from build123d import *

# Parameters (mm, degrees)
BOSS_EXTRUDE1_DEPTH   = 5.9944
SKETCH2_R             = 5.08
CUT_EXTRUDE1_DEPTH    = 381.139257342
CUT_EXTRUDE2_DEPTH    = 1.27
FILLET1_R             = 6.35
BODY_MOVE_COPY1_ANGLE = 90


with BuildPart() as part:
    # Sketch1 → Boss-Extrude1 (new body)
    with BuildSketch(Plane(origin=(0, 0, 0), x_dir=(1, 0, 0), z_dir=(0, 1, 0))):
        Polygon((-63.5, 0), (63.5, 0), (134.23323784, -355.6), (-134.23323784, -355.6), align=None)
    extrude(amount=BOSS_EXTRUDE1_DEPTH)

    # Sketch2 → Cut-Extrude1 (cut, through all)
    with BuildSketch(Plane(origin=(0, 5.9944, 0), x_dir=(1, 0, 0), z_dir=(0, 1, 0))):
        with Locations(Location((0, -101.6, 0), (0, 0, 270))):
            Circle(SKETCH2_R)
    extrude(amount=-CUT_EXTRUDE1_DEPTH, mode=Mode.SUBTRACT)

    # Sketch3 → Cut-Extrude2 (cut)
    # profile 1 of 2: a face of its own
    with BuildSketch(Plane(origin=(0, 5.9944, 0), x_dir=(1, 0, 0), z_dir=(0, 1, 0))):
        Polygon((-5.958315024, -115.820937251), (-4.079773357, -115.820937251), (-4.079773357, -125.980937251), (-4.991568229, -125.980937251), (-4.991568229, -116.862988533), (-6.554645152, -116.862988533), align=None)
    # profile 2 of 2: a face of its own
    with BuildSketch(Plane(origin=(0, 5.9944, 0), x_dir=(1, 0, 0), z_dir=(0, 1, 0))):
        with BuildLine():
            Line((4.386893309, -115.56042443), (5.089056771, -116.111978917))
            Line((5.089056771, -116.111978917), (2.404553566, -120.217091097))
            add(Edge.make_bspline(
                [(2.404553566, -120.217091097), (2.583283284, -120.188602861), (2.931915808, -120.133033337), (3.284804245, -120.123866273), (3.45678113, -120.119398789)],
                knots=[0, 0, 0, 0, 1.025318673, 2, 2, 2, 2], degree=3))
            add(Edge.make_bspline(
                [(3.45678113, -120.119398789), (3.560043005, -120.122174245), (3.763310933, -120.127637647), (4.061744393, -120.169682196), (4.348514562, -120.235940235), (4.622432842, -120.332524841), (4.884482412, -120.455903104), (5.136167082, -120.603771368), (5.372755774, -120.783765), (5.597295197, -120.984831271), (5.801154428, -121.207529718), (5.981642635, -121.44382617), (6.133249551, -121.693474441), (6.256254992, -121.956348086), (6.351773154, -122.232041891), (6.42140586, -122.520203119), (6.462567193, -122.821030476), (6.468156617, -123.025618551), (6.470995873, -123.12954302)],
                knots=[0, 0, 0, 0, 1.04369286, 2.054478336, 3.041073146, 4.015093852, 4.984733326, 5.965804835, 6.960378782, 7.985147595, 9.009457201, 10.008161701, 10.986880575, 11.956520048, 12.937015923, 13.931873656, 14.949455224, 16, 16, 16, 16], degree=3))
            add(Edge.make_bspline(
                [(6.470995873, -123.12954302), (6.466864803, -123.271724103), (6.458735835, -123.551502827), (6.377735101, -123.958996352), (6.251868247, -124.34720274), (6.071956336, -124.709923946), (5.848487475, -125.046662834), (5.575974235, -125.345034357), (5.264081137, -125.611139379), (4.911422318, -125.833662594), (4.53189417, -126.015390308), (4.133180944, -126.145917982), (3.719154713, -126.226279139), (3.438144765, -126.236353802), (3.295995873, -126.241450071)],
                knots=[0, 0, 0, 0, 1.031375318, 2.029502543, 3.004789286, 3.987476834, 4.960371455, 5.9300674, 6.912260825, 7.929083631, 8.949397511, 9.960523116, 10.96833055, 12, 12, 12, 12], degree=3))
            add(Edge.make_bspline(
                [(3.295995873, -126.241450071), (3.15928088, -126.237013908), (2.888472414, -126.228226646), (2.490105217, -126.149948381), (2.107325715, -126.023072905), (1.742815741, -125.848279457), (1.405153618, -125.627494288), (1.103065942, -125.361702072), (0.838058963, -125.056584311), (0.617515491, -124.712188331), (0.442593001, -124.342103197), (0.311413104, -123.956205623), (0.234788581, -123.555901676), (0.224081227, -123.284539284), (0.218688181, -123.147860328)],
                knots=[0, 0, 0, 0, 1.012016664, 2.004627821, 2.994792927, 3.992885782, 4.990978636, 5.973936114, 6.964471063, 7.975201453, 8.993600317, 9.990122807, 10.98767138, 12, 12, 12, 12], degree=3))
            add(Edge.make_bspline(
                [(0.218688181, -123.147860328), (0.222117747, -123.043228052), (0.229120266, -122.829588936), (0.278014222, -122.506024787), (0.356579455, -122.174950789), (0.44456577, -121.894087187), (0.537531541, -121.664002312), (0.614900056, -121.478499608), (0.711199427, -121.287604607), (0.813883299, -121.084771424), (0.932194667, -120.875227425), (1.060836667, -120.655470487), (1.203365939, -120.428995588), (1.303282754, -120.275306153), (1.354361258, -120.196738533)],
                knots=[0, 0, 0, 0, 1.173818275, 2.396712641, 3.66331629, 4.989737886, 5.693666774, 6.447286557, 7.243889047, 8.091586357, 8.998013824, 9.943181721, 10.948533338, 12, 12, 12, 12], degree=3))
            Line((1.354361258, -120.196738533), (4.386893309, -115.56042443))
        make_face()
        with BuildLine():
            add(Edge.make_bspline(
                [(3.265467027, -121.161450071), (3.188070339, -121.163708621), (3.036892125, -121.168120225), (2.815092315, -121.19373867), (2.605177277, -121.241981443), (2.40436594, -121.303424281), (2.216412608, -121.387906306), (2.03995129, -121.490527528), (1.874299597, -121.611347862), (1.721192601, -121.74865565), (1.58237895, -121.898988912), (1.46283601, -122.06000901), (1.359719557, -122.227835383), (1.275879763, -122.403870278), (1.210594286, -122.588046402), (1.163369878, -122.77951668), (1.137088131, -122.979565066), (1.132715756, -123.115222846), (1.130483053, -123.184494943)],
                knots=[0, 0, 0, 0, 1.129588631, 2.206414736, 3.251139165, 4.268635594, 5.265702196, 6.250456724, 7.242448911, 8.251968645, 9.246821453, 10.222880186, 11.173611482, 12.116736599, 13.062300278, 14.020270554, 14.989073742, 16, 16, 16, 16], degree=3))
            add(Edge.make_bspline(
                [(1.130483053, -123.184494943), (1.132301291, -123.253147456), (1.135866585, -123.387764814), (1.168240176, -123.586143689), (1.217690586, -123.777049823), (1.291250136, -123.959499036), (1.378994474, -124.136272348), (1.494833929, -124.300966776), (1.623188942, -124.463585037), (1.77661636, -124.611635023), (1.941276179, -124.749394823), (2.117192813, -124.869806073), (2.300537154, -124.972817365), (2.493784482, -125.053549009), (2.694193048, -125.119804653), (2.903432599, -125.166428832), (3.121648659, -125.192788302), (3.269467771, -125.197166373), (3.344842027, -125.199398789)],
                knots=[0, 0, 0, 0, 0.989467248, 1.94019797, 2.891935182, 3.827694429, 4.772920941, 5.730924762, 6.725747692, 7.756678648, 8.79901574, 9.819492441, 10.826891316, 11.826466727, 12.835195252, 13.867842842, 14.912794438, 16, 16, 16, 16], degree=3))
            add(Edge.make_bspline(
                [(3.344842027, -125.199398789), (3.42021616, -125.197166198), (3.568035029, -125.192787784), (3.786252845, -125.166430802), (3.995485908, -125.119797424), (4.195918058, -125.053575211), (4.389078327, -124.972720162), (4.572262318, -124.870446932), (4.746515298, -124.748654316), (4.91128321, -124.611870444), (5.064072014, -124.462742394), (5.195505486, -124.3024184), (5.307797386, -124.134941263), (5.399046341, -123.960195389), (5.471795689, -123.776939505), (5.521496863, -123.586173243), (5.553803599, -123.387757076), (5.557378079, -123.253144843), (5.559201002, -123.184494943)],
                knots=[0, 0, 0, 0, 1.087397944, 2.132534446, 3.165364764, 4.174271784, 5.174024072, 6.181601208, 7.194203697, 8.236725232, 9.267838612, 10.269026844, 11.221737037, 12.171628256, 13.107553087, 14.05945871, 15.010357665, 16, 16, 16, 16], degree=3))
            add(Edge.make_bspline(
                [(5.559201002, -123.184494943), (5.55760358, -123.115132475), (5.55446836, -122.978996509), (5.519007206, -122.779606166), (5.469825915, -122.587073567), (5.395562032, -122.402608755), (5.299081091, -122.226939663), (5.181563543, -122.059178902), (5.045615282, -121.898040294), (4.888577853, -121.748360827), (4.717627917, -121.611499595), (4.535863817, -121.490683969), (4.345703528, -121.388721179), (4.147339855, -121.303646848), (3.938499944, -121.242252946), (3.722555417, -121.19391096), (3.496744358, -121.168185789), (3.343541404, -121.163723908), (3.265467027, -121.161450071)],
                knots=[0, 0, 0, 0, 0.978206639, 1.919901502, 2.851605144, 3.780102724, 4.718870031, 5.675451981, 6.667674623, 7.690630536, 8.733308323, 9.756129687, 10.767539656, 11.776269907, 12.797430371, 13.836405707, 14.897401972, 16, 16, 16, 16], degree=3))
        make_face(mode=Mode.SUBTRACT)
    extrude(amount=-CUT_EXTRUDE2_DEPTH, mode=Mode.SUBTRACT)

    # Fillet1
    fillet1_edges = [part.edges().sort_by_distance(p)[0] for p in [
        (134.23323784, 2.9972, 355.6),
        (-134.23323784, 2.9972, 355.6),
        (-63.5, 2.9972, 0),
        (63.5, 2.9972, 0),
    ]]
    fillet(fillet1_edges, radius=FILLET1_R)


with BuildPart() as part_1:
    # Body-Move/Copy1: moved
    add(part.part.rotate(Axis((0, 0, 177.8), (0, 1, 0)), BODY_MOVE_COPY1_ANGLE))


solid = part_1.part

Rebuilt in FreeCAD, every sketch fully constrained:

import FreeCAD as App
import Part
import Sketcher
Q = App.Units.Quantity


def edges_at(feature, points):
    """Names of the edges that pass closest to the given points."""
    edges = feature.Shape.Edges
    near = lambda p: min(range(len(edges)), key=lambda i: edges[i].distToShape(Part.Vertex(*p))[0])
    return sorted({f"Edge{near(p) + 1}" for p in points})


def add_polygon(sketch, points):
    """Adds a closed chain of lines whose ends are joined by coincident constraints."""
    first, n = sketch.GeometryCount, len(points)
    for a, b in zip(points, points[1:] + points[:1]):
        sketch.addGeometry(Part.LineSegment(App.Vector(*a, 0), App.Vector(*b, 0)), False)
    for i in range(n):
        sketch.addConstraint(Sketcher.Constraint("Coincident", first + i, 2, first + (i + 1) % n, 1))

doc = App.newDocument("Part")
body = doc.addObject("PartDesign::Body", "Body")

# Sketch on XZ plane
sketch1 = body.newObject("Sketcher::SketchObject", "Sketch")
sketch1.AttachmentSupport = (doc.getObject("XZ_Plane"), [""])
sketch1.MapMode = "FlatFace"
add_polygon(sketch1, [(63.5, 0), (-63.5, 0), (-134.233238, 355.6), (134.233238, 355.6)])  # lines 0-3
sketch1.addConstraint(Sketcher.Constraint("Horizontal", 0))
sketch1.addConstraint(Sketcher.Constraint("Horizontal", 2))
sketch1.addConstraint(Sketcher.Constraint("Symmetric", 0, 2, 3, 2, -1, 1))
sketch1.addConstraint(Sketcher.Constraint("Equal", 1, 3))
sketch1.addConstraint(Sketcher.Constraint("DistanceX", 0, 2, 0, 1, Q("5 in")))
sketch1.addConstraint(Sketcher.Constraint("DistanceY", -1, 1, 1, 2, Q("14 in")))
sketch1.addConstraint(Sketcher.Constraint("Angle", 1, Q("101.25 deg")))
pad1 = body.newObject("PartDesign::Pad", "Pad")
pad1.Profile = sketch1
pad1.Length = Q("0.236 in")
pad1.Reversed = True

# Sketch on XZ plane
sketch2 = body.newObject("Sketcher::SketchObject", "Sketch001")
sketch2.AttachmentSupport = (doc.getObject("XZ_Plane"), [""])
sketch2.MapMode = "FlatFace"
sketch2.AttachmentOffset = App.Placement(App.Vector(0, 0, -0.236 * 25.4), App.Rotation())
sketch2.addGeometry(Part.Circle(App.Vector(0, 101.6, 0), App.Vector(0, 0, 1), 5.08), False)
sketch2.addConstraint(Sketcher.Constraint("PointOnObject", 0, 3, -2))
sketch2.addConstraint(Sketcher.Constraint("Diameter", 0, Q("0.4 in")))
sketch2.addConstraint(Sketcher.Constraint("DistanceY", -1, 1, 0, 3, Q("4 in")))
pocket1 = body.newObject("PartDesign::Pocket", "Pocket")
pocket1.Profile = sketch2
pocket1.Type = "ThroughAll"
pocket1.Reversed = True

# Sketch on XZ plane
sketch3 = body.newObject("Sketcher::SketchObject", "Sketch002")
sketch3.AttachmentSupport = (doc.getObject("XZ_Plane"), [""])
sketch3.MapMode = "FlatFace"
sketch3.AttachmentOffset = App.Placement(App.Vector(0, 0, -0.236 * 25.4), App.Rotation())
add_polygon(sketch3, [(-4.079773, 115.820937), (-5.958315, 115.820937), (-6.554645, 116.862989), (-4.991568, 116.862989), (-4.991568, 125.980937), (-4.079773, 125.980937)])  # lines 0-5
sketch3.addGeometry(Part.LineSegment(App.Vector(5.089057, 116.111979, 0), App.Vector(4.386893, 115.560424, 0)), False)  # 6
sketch3.addGeometry(Part.LineSegment(App.Vector(4.386893, 115.560424, 0), App.Vector(1.354361, 120.196739, 0)), False)  # 7
sketch3.addGeometry(Part.BSplineCurve([App.Vector(0.218688, 123.14786, 0), App.Vector(0.222118, 123.043228, 0), App.Vector(0.22912, 122.829589, 0), App.Vector(0.278014, 122.506025, 0), App.Vector(0.356579, 122.174951, 0), App.Vector(0.444566, 121.894087, 0), App.Vector(0.537532, 121.664002, 0), App.Vector(0.6149, 121.4785, 0), App.Vector(0.711199, 121.287605, 0), App.Vector(0.813883, 121.084771, 0), App.Vector(0.932195, 120.875227, 0), App.Vector(1.060837, 120.65547, 0), App.Vector(1.203366, 120.428996, 0), App.Vector(1.303283, 120.275306, 0), App.Vector(1.354361, 120.196739, 0)], [4, 1, 1, 1, 1, 1, 1, 1, 1, 1, 1, 1, 4], [0, 1.173818275, 2.396712641, 3.66331629, 4.989737886, 5.693666774, 6.447286557, 7.243889047, 8.091586357, 8.998013824, 9.943181721, 10.948533338, 12], False, 3, [1, 1, 1, 1, 1, 1, 1, 1, 1, 1, 1, 1, 1, 1, 1], False), False)  # 8
sketch3.addGeometry(Part.BSplineCurve([App.Vector(3.295996, 126.24145, 0), App.Vector(3.159281, 126.237014, 0), App.Vector(2.888472, 126.228227, 0), App.Vector(2.490105, 126.149948, 0), App.Vector(2.107326, 126.023073, 0), App.Vector(1.742816, 125.848279, 0), App.Vector(1.405154, 125.627494, 0), App.Vector(1.103066, 125.361702, 0), App.Vector(0.838059, 125.056584, 0), App.Vector(0.617515, 124.712188, 0), App.Vector(0.442593, 124.342103, 0), App.Vector(0.311413, 123.956206, 0), App.Vector(0.234789, 123.555902, 0), App.Vector(0.224081, 123.284539, 0), App.Vector(0.218688, 123.14786, 0)], [4, 1, 1, 1, 1, 1, 1, 1, 1, 1, 1, 1, 4], [0, 1.012016664, 2.004627821, 2.994792927, 3.992885782, 4.990978636, 5.973936114, 6.964471063, 7.975201453, 8.993600317, 9.990122807, 10.98767138, 12], False, 3, [1, 1, 1, 1, 1, 1, 1, 1, 1, 1, 1, 1, 1, 1, 1], False), False)  # 9
sketch3.addGeometry(Part.BSplineCurve([App.Vector(6.470996, 123.129543, 0), App.Vector(6.466865, 123.271724, 0), App.Vector(6.458736, 123.551503, 0), App.Vector(6.377735, 123.958996, 0), App.Vector(6.251868, 124.347203, 0), App.Vector(6.071956, 124.709924, 0), App.Vector(5.848487, 125.046663, 0), App.Vector(5.575974, 125.345034, 0), App.Vector(5.264081, 125.611139, 0), App.Vector(4.911422, 125.833663, 0), App.Vector(4.531894, 126.01539, 0), App.Vector(4.133181, 126.145918, 0), App.Vector(3.719155, 126.226279, 0), App.Vector(3.438145, 126.236354, 0), App.Vector(3.295996, 126.24145, 0)], [4, 1, 1, 1, 1, 1, 1, 1, 1, 1, 1, 1, 4], [0, 1.031375318, 2.029502543, 3.004789286, 3.987476834, 4.960371455, 5.9300674, 6.912260825, 7.929083631, 8.949397511, 9.960523116, 10.96833055, 12], False, 3, [1, 1, 1, 1, 1, 1, 1, 1, 1, 1, 1, 1, 1, 1, 1], False), False)  # 10
sketch3.addGeometry(Part.BSplineCurve([App.Vector(3.456781, 120.119399, 0), App.Vector(3.560043, 120.122174, 0), App.Vector(3.763311, 120.127638, 0), App.Vector(4.061744, 120.169682, 0), App.Vector(4.348515, 120.23594, 0), App.Vector(4.622433, 120.332525, 0), App.Vector(4.884482, 120.455903, 0), App.Vector(5.136167, 120.603771, 0), App.Vector(5.372756, 120.783765, 0), App.Vector(5.597295, 120.984831, 0), App.Vector(5.801154, 121.20753, 0), App.Vector(5.981643, 121.443826, 0), App.Vector(6.13325, 121.693474, 0), App.Vector(6.256255, 121.956348, 0), App.Vector(6.351773, 122.232042, 0), App.Vector(6.421406, 122.520203, 0), App.Vector(6.462567, 122.82103, 0), App.Vector(6.468157, 123.025619, 0), App.Vector(6.470996, 123.129543, 0)], [4, 1, 1, 1, 1, 1, 1, 1, 1, 1, 1, 1, 1, 1, 1, 1, 4], [0, 1.04369286, 2.054478336, 3.041073146, 4.015093852, 4.984733326, 5.965804835, 6.960378782, 7.985147595, 9.009457201, 10.008161701, 10.986880575, 11.956520048, 12.937015923, 13.931873656, 14.949455224, 16], False, 3, [1, 1, 1, 1, 1, 1, 1, 1, 1, 1, 1, 1, 1, 1, 1, 1, 1, 1, 1], False), False)  # 11
sketch3.addGeometry(Part.BSplineCurve([App.Vector(2.404554, 120.217091, 0), App.Vector(2.583283, 120.188603, 0), App.Vector(2.931916, 120.133033, 0), App.Vector(3.284804, 120.123866, 0), App.Vector(3.456781, 120.119399, 0)], [4, 1, 4], [0, 1.025318673, 2], False, 3, [1, 1, 1, 1, 1], False), False)  # 12
sketch3.addGeometry(Part.LineSegment(App.Vector(2.404554, 120.217091, 0), App.Vector(5.089057, 116.111979, 0)), False)  # 13
sketch3.addGeometry(Part.BSplineCurve([App.Vector(5.559201, 123.184495, 0), App.Vector(5.557604, 123.115132, 0), App.Vector(5.554468, 122.978997, 0), App.Vector(5.519007, 122.779606, 0), App.Vector(5.469826, 122.587074, 0), App.Vector(5.395562, 122.402609, 0), App.Vector(5.299081, 122.22694, 0), App.Vector(5.181564, 122.059179, 0), App.Vector(5.045615, 121.89804, 0), App.Vector(4.888578, 121.748361, 0), App.Vector(4.717628, 121.6115, 0), App.Vector(4.535864, 121.490684, 0), App.Vector(4.345704, 121.388721, 0), App.Vector(4.14734, 121.303647, 0), App.Vector(3.9385, 121.242253, 0), App.Vector(3.722555, 121.193911, 0), App.Vector(3.496744, 121.168186, 0), App.Vector(3.343541, 121.163724, 0), App.Vector(3.265467, 121.16145, 0)], [4, 1, 1, 1, 1, 1, 1, 1, 1, 1, 1, 1, 1, 1, 1, 1, 4], [0, 0.978206639, 1.919901502, 2.851605144, 3.780102724, 4.718870031, 5.675451981, 6.667674623, 7.690630536, 8.733308323, 9.756129687, 10.767539656, 11.776269907, 12.797430371, 13.836405707, 14.897401972, 16], False, 3, [1, 1, 1, 1, 1, 1, 1, 1, 1, 1, 1, 1, 1, 1, 1, 1, 1, 1, 1], False), False)  # 14
sketch3.addGeometry(Part.BSplineCurve([App.Vector(3.344842, 125.199399, 0), App.Vector(3.420216, 125.197166, 0), App.Vector(3.568035, 125.192788, 0), App.Vector(3.786253, 125.166431, 0), App.Vector(3.995486, 125.119797, 0), App.Vector(4.195918, 125.053575, 0), App.Vector(4.389078, 124.97272, 0), App.Vector(4.572262, 124.870447, 0), App.Vector(4.746515, 124.748654, 0), App.Vector(4.911283, 124.61187, 0), App.Vector(5.064072, 124.462742, 0), App.Vector(5.195505, 124.302418, 0), App.Vector(5.307797, 124.134941, 0), App.Vector(5.399046, 123.960195, 0), App.Vector(5.471796, 123.77694, 0), App.Vector(5.521497, 123.586173, 0), App.Vector(5.553804, 123.387757, 0), App.Vector(5.557378, 123.253145, 0), App.Vector(5.559201, 123.184495, 0)], [4, 1, 1, 1, 1, 1, 1, 1, 1, 1, 1, 1, 1, 1, 1, 1, 4], [0, 1.087397944, 2.132534446, 3.165364764, 4.174271784, 5.174024072, 6.181601208, 7.194203697, 8.236725232, 9.267838612, 10.269026844, 11.221737037, 12.171628256, 13.107553087, 14.05945871, 15.010357665, 16], False, 3, [1, 1, 1, 1, 1, 1, 1, 1, 1, 1, 1, 1, 1, 1, 1, 1, 1, 1, 1], False), False)  # 15
sketch3.addGeometry(Part.BSplineCurve([App.Vector(1.130483, 123.184495, 0), App.Vector(1.132301, 123.253147, 0), App.Vector(1.135867, 123.387765, 0), App.Vector(1.16824, 123.586144, 0), App.Vector(1.217691, 123.77705, 0), App.Vector(1.29125, 123.959499, 0), App.Vector(1.378994, 124.136272, 0), App.Vector(1.494834, 124.300967, 0), App.Vector(1.623189, 124.463585, 0), App.Vector(1.776616, 124.611635, 0), App.Vector(1.941276, 124.749395, 0), App.Vector(2.117193, 124.869806, 0), App.Vector(2.300537, 124.972817, 0), App.Vector(2.493784, 125.053549, 0), App.Vector(2.694193, 125.119805, 0), App.Vector(2.903433, 125.166429, 0), App.Vector(3.121649, 125.192788, 0), App.Vector(3.269468, 125.197166, 0), App.Vector(3.344842, 125.199399, 0)], [4, 1, 1, 1, 1, 1, 1, 1, 1, 1, 1, 1, 1, 1, 1, 1, 4], [0, 0.989467248, 1.94019797, 2.891935182, 3.827694429, 4.772920941, 5.730924762, 6.725747692, 7.756678648, 8.79901574, 9.819492441, 10.826891316, 11.826466727, 12.835195252, 13.867842842, 14.912794438, 16], False, 3, [1, 1, 1, 1, 1, 1, 1, 1, 1, 1, 1, 1, 1, 1, 1, 1, 1, 1, 1], False), False)  # 16
sketch3.addGeometry(Part.BSplineCurve([App.Vector(3.265467, 121.16145, 0), App.Vector(3.18807, 121.163709, 0), App.Vector(3.036892, 121.16812, 0), App.Vector(2.815092, 121.193739, 0), App.Vector(2.605177, 121.241981, 0), App.Vector(2.404366, 121.303424, 0), App.Vector(2.216413, 121.387906, 0), App.Vector(2.039951, 121.490528, 0), App.Vector(1.8743, 121.611348, 0), App.Vector(1.721193, 121.748656, 0), App.Vector(1.582379, 121.898989, 0), App.Vector(1.462836, 122.060009, 0), App.Vector(1.35972, 122.227835, 0), App.Vector(1.27588, 122.40387, 0), App.Vector(1.210594, 122.588046, 0), App.Vector(1.16337, 122.779517, 0), App.Vector(1.137088, 122.979565, 0), App.Vector(1.132716, 123.115223, 0), App.Vector(1.130483, 123.184495, 0)], [4, 1, 1, 1, 1, 1, 1, 1, 1, 1, 1, 1, 1, 1, 1, 1, 4], [0, 1.129588631, 2.206414736, 3.251139165, 4.268635594, 5.265702196, 6.250456724, 7.242448911, 8.251968645, 9.246821453, 10.222880186, 11.173611482, 12.116736599, 13.062300278, 14.020270554, 14.989073742, 16], False, 3, [1, 1, 1, 1, 1, 1, 1, 1, 1, 1, 1, 1, 1, 1, 1, 1, 1, 1, 1], False), False)  # 17
sketch3.addConstraint(Sketcher.Constraint("Block", 8))
sketch3.addConstraint(Sketcher.Constraint("Block", 9))
sketch3.addConstraint(Sketcher.Constraint("Block", 10))
sketch3.addConstraint(Sketcher.Constraint("Block", 11))
sketch3.addConstraint(Sketcher.Constraint("Block", 12))
sketch3.addConstraint(Sketcher.Constraint("Block", 14))
sketch3.addConstraint(Sketcher.Constraint("Block", 15))
sketch3.addConstraint(Sketcher.Constraint("Block", 16))
sketch3.addConstraint(Sketcher.Constraint("Block", 17))
sketch3.addConstraint(Sketcher.Constraint("Coincident", 6, 2, 7, 1))
sketch3.addConstraint(Sketcher.Constraint("Coincident", 7, 2, 8, 2))
sketch3.addConstraint(Sketcher.Constraint("Coincident", 12, 1, 13, 1))
sketch3.addConstraint(Sketcher.Constraint("Coincident", 13, 2, 6, 1))
sketch3.addConstraint(Sketcher.Constraint("Horizontal", 0))
sketch3.addConstraint(Sketcher.Constraint("Horizontal", 2))
sketch3.addConstraint(Sketcher.Constraint("Vertical", 3))
sketch3.addConstraint(Sketcher.Constraint("Horizontal", 4))
sketch3.addConstraint(Sketcher.Constraint("Vertical", 5))
sketch3.addConstraint(Sketcher.Constraint("DistanceY", 5, 2, 5, 1, Q("0.4 in")))
sketch3.addConstraint(Sketcher.Constraint("DistanceX", 0, 2, 0, 1, Q("1.878542 mm")))
sketch3.addConstraint(Sketcher.Constraint("DistanceY", 3, 1, 3, 2, Q("9.117949 mm")))
sketch3.addConstraint(Sketcher.Constraint("DistanceY", 5, 2, 7, 2, Q("4.375801 mm")))
sketch3.addConstraint(Sketcher.Constraint("DistanceX", 2, 1, 2, 2, Q("1.563077 mm")))
sketch3.addConstraint(Sketcher.Constraint("DistanceX", 4, 1, 4, 2, Q("0.911795 mm")))
sketch3.addConstraint(Sketcher.Constraint("DistanceX", 2, 2, -1, 1, Q("4.991568 mm")))
sketch3.addConstraint(Sketcher.Constraint("DistanceY", -1, 1, 13, 2, Q("116.111979 mm")))
sketch3.addConstraint(Sketcher.Constraint("DistanceX", 2, 2, 6, 2, Q("9.378462 mm")))
sketch3.addConstraint(Sketcher.Constraint("DistanceX", 5, 2, 13, 2, Q("9.16883 mm")))
sketch3.addConstraint(Sketcher.Constraint("Distance", 6, Q("0.892886 mm")))
pocket2 = body.newObject("PartDesign::Pocket", "Pocket001")
pocket2.Profile = sketch3
pocket2.Length = Q("0.05 in")
pocket2.Reversed = True
doc.recompute()

fillet = body.newObject("PartDesign::Fillet", "Fillet")
fillet.Base = (pocket2, edges_at(pocket2, [
    (134.233, 2.997, 355.6),
    (-134.233, 2.997, 355.6),
    (-63.5, 2.997, 0),
    (63.5, 2.997, 0),
]))
fillet.Radius = Q("0.25 in")
body2 = doc.addObject("PartDesign::Body", "Body001")
doc.recompute()

body.Placement = App.Placement(App.Vector(-177.8, 0, 177.8), App.Rotation(App.Vector(0, 1, 0), 90))
boolean = body2.newObject("PartDesign::Boolean", "Boolean")
boolean.Type = "Fuse"
boolean.addObjects([body])

doc.recompute()
